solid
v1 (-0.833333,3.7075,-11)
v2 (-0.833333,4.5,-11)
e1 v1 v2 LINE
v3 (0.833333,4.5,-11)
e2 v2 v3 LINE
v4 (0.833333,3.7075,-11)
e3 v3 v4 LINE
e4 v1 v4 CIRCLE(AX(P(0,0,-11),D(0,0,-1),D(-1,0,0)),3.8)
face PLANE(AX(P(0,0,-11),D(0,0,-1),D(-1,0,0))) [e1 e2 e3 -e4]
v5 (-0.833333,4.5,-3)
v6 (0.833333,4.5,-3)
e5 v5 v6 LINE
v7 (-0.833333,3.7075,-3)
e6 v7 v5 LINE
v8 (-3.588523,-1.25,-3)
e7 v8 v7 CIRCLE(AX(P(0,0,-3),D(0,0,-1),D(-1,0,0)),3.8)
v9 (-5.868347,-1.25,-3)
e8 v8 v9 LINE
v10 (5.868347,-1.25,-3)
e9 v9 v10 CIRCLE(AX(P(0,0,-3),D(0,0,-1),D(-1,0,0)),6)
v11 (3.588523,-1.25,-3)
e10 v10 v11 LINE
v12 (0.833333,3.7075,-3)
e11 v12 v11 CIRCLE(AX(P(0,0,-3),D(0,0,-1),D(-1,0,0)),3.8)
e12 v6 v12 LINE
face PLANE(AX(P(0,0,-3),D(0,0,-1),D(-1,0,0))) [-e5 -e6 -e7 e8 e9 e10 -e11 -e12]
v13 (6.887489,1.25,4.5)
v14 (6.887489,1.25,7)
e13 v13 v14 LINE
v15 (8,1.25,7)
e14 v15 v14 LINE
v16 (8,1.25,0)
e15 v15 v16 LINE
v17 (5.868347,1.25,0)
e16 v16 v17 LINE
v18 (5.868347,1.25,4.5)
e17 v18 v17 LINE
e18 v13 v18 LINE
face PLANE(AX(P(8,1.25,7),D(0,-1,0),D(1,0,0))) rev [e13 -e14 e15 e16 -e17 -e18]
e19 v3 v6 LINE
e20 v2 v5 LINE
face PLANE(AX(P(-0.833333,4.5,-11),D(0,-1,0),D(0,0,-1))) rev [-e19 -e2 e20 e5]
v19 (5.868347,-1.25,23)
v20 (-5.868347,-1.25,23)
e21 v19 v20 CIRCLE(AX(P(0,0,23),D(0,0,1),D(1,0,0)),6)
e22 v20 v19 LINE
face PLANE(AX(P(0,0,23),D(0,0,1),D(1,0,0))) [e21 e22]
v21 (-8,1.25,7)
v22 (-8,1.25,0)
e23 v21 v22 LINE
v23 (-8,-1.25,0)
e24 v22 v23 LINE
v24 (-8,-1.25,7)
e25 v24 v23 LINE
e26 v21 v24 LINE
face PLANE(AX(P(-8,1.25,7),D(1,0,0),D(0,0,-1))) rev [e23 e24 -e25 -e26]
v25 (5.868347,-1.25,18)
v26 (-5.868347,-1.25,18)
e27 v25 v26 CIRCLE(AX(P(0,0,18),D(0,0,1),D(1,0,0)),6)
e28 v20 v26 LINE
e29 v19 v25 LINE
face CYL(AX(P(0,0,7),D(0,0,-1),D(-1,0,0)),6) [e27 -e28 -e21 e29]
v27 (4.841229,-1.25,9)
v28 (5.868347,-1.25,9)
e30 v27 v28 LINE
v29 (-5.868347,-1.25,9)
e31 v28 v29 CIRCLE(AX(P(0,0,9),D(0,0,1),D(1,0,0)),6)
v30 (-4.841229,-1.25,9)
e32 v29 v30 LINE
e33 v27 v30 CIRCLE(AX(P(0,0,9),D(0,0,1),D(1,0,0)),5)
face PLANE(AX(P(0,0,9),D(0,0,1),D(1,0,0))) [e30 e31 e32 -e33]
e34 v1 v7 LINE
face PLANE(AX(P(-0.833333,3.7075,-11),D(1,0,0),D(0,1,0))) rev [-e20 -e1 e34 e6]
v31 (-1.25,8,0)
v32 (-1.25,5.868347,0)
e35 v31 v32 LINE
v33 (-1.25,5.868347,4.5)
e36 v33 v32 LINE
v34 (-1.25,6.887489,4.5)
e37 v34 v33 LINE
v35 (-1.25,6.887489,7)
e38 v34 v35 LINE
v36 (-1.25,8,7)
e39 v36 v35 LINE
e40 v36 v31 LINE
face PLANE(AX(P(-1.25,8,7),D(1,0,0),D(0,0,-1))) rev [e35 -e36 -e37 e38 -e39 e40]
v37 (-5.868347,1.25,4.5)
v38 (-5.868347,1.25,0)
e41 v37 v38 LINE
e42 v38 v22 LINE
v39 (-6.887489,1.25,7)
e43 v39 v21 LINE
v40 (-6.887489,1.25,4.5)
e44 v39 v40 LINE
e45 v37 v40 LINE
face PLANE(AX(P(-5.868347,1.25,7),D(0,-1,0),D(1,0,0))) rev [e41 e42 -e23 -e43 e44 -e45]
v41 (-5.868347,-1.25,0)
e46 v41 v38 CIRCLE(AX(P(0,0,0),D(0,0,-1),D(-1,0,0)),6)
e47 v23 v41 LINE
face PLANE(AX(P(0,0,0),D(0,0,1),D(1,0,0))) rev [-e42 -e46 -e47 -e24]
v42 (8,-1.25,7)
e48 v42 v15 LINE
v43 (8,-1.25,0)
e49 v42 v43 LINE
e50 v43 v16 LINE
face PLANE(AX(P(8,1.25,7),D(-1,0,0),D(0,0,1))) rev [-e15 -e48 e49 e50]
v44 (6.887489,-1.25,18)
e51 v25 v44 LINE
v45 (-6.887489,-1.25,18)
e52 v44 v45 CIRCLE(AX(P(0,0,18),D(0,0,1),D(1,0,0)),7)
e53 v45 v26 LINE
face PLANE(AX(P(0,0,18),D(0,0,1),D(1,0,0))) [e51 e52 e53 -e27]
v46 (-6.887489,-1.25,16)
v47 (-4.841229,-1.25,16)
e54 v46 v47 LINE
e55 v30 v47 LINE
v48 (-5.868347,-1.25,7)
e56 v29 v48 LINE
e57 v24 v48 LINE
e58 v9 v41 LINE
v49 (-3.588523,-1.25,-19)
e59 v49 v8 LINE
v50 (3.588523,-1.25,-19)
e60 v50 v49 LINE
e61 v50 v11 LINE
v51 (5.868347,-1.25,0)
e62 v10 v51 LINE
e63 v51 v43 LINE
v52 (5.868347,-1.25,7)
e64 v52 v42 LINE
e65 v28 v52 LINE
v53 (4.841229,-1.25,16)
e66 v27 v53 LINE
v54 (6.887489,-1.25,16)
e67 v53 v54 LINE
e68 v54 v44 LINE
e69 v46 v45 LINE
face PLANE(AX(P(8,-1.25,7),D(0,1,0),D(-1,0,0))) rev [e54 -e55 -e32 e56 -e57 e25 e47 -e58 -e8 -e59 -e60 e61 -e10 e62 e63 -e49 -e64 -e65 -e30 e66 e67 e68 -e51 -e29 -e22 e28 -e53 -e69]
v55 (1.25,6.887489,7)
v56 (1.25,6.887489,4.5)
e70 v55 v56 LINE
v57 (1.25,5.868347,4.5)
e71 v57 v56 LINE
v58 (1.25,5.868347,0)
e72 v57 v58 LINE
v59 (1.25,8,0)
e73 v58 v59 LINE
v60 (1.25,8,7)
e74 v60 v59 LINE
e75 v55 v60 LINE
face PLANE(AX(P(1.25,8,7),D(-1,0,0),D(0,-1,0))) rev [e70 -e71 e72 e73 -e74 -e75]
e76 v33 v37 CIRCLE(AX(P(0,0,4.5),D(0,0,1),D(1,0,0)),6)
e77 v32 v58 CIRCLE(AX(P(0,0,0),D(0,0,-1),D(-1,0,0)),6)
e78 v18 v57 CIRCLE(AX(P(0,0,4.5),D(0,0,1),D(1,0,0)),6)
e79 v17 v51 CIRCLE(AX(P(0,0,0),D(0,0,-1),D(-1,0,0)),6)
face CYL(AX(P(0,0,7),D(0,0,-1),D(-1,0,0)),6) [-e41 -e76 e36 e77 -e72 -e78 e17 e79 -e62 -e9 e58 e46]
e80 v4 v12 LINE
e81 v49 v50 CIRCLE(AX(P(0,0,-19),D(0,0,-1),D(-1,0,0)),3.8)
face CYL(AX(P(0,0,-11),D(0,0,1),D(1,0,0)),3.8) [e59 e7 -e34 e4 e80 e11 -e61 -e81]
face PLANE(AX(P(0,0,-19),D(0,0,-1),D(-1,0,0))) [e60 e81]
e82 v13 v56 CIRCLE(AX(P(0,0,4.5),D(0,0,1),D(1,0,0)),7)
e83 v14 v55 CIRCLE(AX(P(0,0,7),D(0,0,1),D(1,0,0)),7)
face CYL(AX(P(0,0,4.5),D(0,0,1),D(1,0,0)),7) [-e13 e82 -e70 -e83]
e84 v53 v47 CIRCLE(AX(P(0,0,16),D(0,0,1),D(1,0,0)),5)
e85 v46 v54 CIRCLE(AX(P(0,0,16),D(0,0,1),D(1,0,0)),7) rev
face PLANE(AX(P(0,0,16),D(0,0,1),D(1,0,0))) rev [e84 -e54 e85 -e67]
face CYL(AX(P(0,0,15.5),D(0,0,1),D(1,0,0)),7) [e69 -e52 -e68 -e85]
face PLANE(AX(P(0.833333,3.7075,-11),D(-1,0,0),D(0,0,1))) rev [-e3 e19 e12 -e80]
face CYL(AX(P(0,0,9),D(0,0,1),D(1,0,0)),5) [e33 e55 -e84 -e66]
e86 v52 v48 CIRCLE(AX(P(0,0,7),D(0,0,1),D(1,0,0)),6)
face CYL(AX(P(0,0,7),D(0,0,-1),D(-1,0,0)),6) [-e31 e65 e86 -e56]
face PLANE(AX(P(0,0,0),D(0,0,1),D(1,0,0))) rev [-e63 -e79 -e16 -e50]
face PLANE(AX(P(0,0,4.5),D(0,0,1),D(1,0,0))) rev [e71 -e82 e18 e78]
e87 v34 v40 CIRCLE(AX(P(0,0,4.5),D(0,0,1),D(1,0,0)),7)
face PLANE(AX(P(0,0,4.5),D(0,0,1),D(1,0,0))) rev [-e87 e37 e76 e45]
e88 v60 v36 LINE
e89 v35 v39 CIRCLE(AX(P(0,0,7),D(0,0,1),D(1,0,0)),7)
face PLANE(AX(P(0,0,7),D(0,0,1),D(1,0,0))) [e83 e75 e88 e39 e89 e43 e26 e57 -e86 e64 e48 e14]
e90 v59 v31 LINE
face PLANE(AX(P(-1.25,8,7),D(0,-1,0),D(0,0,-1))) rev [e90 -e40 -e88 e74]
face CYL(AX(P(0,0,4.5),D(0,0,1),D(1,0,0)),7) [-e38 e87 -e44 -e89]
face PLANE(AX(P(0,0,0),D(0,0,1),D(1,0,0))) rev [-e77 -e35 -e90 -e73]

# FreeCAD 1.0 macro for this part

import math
import FreeCAD as App
import Part
import Sketcher
from FreeCAD import Vector
Q = App.Units.Quantity

doc = App.newDocument("Part")
body = doc.addObject("PartDesign::Body", "Body")

sketch1 = body.newObject("Sketcher::SketchObject", "Sketch")
sketch1.AttachmentSupport = (doc.getObject("XY_Plane"), [""])
sketch1.MapMode = "FlatFace"
sketch1.addGeometry(Part.LineSegment(Vector(8, 1.25, 0), Vector(5.868347, 1.25, 0)), False)
sketch1.addGeometry(Part.ArcOfCircle(Part.Circle(Vector(0, 0, 0), Vector(0, 0, 1), 6), math.radians(12.024699), math.radians(77.975301)), False)
sketch1.addGeometry(Part.LineSegment(Vector(1.25, 5.868347, 0), Vector(1.25, 8, 0)), False)
sketch1.addGeometry(Part.LineSegment(Vector(1.25, 8, 0), Vector(-1.25, 8, 0)), False)
sketch1.addGeometry(Part.LineSegment(Vector(-1.25, 8, 0), Vector(-1.25, 5.868347, 0)), False)
sketch1.addGeometry(Part.ArcOfCircle(Part.Circle(Vector(0, 0, 0), Vector(0, 0, 1), 6), math.radians(102.024699), math.radians(167.975301)), False)
sketch1.addGeometry(Part.LineSegment(Vector(-5.868347, 1.25, 0), Vector(-8, 1.25, 0)), False)
sketch1.addGeometry(Part.LineSegment(Vector(-8, 1.25, 0), Vector(-8, -1.25, 0)), False)
sketch1.addGeometry(Part.LineSegment(Vector(-8, -1.25, 0), Vector(8, -1.25, 0)), False)
sketch1.addGeometry(Part.LineSegment(Vector(8, -1.25, 0), Vector(8, 1.25, 0)), False)
sketch1.addConstraint(Sketcher.Constraint("Coincident", 0, 2, 1, 1))
sketch1.addConstraint(Sketcher.Constraint("Coincident", 1, 2, 2, 1))
sketch1.addConstraint(Sketcher.Constraint("Coincident", 2, 2, 3, 1))
sketch1.addConstraint(Sketcher.Constraint("Coincident", 3, 2, 4, 1))
sketch1.addConstraint(Sketcher.Constraint("Coincident", 4, 2, 5, 1))
sketch1.addConstraint(Sketcher.Constraint("Coincident", 5, 2, 6, 1))
sketch1.addConstraint(Sketcher.Constraint("Coincident", 6, 2, 7, 1))
sketch1.addConstraint(Sketcher.Constraint("Coincident", 7, 2, 8, 1))
sketch1.addConstraint(Sketcher.Constraint("Coincident", 8, 2, 9, 1))
sketch1.addConstraint(Sketcher.Constraint("Coincident", 9, 2, 0, 1))
sketch1.addConstraint(Sketcher.Constraint("Horizontal", 0))
sketch1.addConstraint(Sketcher.Constraint("Vertical", 2))
sketch1.addConstraint(Sketcher.Constraint("Horizontal", 3))
sketch1.addConstraint(Sketcher.Constraint("Vertical", 4))
sketch1.addConstraint(Sketcher.Constraint("Horizontal", 6))
sketch1.addConstraint(Sketcher.Constraint("Vertical", 7))
sketch1.addConstraint(Sketcher.Constraint("Horizontal", 8))
sketch1.addConstraint(Sketcher.Constraint("Vertical", 9))
sketch1.addConstraint(Sketcher.Constraint("Coincident", 1, 3, -1, 1))
sketch1.addConstraint(Sketcher.Constraint("Coincident", 5, 3, -1, 1))
sketch1.addConstraint(Sketcher.Constraint("Equal", 1, 5))
sketch1.addConstraint(Sketcher.Constraint("Symmetric", 6, 2, 8, 2, -1, 1))
sketch1.addConstraint(Sketcher.Constraint("Horizontal", 1, 2, 4, 2))
sketch1.addConstraint(Sketcher.Constraint("Horizontal", 0, 2, 5, 2))
sketch1.addConstraint(Sketcher.Constraint("Equal", 6, 2))
sketch1.addConstraint(Sketcher.Constraint("Equal", 3, 7))
sketch1.addConstraint(Sketcher.Constraint("Radius", 1, Q("6 mm")))
sketch1.addConstraint(Sketcher.Constraint("DistanceX", 8, 1, 8, 2, Q("16 mm")))
sketch1.addConstraint(Sketcher.Constraint("DistanceX", 3, 2, 3, 1, Q("2.5 mm")))
pad1 = body.newObject("PartDesign::Pad", "Pad")
pad1.Profile = sketch1
pad1.Length = 7

sketch2 = body.newObject("Sketcher::SketchObject", "Sketch001")
sketch2.AttachmentSupport = (doc.getObject("XY_Plane"), [""])
sketch2.MapMode = "FlatFace"
sketch2.AttachmentOffset = App.Placement(Vector(0, 0, 7), App.Rotation())
sketch2.addGeometry(Part.LineSegment(Vector(-5.868347, -1.25, 0), Vector(5.868347, -1.25, 0)), False)
sketch2.addGeometry(Part.ArcOfCircle(Part.Circle(Vector(0, 0, 0), Vector(0, 0, 1), 6), math.radians(-12.024699), math.radians(192.024699)), False)
sketch2.addConstraint(Sketcher.Constraint("Coincident", 0, 1, 1, 2))
sketch2.addConstraint(Sketcher.Constraint("Coincident", 1, 1, 0, 2))
sketch2.addConstraint(Sketcher.Constraint("Horizontal", 0))
sketch2.addConstraint(Sketcher.Constraint("Coincident", 1, 3, -1, 1))
sketch2.addConstraint(Sketcher.Constraint("Radius", 1, Q("6 mm")))
sketch2.addConstraint(Sketcher.Constraint("DistanceY", 0, 1, -1, 1, Q("1.25 mm")))
pad2 = body.newObject("PartDesign::Pad", "Pad001")
pad2.Profile = sketch2
pad2.Length = 16

sketch3 = body.newObject("Sketcher::SketchObject", "Sketch002")
sketch3.AttachmentSupport = (doc.getObject("XY_Plane"), [""])
sketch3.MapMode = "FlatFace"
sketch3.AttachmentOffset = App.Placement(Vector(0, 0, 7), App.Rotation())
sketch3.addGeometry(Part.LineSegment(Vector(-6.887489, -1.25, 0), Vector(6.887489, -1.25, 0)), False)
sketch3.addGeometry(Part.ArcOfCircle(Part.Circle(Vector(0, 0, 0), Vector(0, 0, 1), 7), math.radians(-10.286561), math.radians(190.286561)), False)
sketch3.addConstraint(Sketcher.Constraint("Coincident", 0, 1, 1, 2))
sketch3.addConstraint(Sketcher.Constraint("Coincident", 1, 1, 0, 2))
sketch3.addConstraint(Sketcher.Constraint("Horizontal", 0))
sketch3.addConstraint(Sketcher.Constraint("Coincident", 1, 3, -1, 1))
sketch3.addConstraint(Sketcher.Constraint("Radius", 1, Q("7 mm")))
sketch3.addConstraint(Sketcher.Constraint("DistanceY", 0, 1, -1, 1, Q("1.25 mm")))
pad3 = body.newObject("PartDesign::Pad", "Pad002")
pad3.Profile = sketch3
pad3.Length = 2.5
pad3.Reversed = True

sketch4 = body.newObject("Sketcher::SketchObject", "Sketch003")
sketch4.AttachmentSupport = (doc.getObject("XY_Plane"), [""])
sketch4.MapMode = "FlatFace"
sketch4.AttachmentOffset = App.Placement(Vector(0, 0, 18), App.Rotation())
sketch4.addGeometry(Part.LineSegment(Vector(-6.887489, -1.25, 0), Vector(6.887489, -1.25, 0)), False)
sketch4.addGeometry(Part.ArcOfCircle(Part.Circle(Vector(0, 0, 0), Vector(0, 0, 1), 7), math.radians(-10.286561), math.radians(190.286561)), False)
sketch4.addConstraint(Sketcher.Constraint("Coincident", 0, 1, 1, 2))
sketch4.addConstraint(Sketcher.Constraint("Coincident", 1, 1, 0, 2))
sketch4.addConstraint(Sketcher.Constraint("Horizontal", 0))
sketch4.addConstraint(Sketcher.Constraint("Coincident", 1, 3, -1, 1))
sketch4.addConstraint(Sketcher.Constraint("Radius", 1, Q("7 mm")))
sketch4.addConstraint(Sketcher.Constraint("DistanceY", 0, 1, -1, 1, Q("1.25 mm")))
pad4 = body.newObject("PartDesign::Pad", "Pad003")
pad4.Profile = sketch4
pad4.Length = 2.5
pad4.Reversed = True

sketch5 = body.newObject("Sketcher::SketchObject", "Sketch004")
sketch5.AttachmentSupport = (doc.getObject("XY_Plane"), [""])
sketch5.MapMode = "FlatFace"
sketch5.AttachmentOffset = App.Placement(Vector(0, 0, 16), App.Rotation())
sketch5.addGeometry(Part.Circle(Vector(0, 0, 0), Vector(0, 0, 1), 7.581766), False)
sketch5.addGeometry(Part.LineSegment(Vector(4.841229, -1.25, 0), Vector(-4.841229, -1.25, 0)), False)
sketch5.addGeometry(Part.ArcOfCircle(Part.Circle(Vector(0, 0, 0), Vector(0, 0, 1), 5), math.radians(-14.477512), math.radians(194.477512)), False)
sketch5.addConstraint(Sketcher.Constraint("Coincident", 1, 1, 2, 1))
sketch5.addConstraint(Sketcher.Constraint("Coincident", 2, 2, 1, 2))
sketch5.addConstraint(Sketcher.Constraint("Horizontal", 1))
sketch5.addConstraint(Sketcher.Constraint("Coincident", 0, 3, -1, 1))
sketch5.addConstraint(Sketcher.Constraint("Coincident", 2, 3, -1, 1))
sketch5.addConstraint(Sketcher.Constraint("Radius", 2, Q("5 mm")))
sketch5.addConstraint(Sketcher.Constraint("Diameter", 0, Q("15.163532 mm")))
sketch5.addConstraint(Sketcher.Constraint("DistanceY", 1, 1, -1, 1, Q("1.25 mm")))
pocket1 = body.newObject("PartDesign::Pocket", "Pocket")
pocket1.Profile = sketch5
pocket1.Length = 7

sketch6 = body.newObject("Sketcher::SketchObject", "Sketch005")
sketch6.AttachmentSupport = (doc.getObject("XY_Plane"), [""])
sketch6.MapMode = "FlatFace"
sketch6.AttachmentOffset = App.Placement(Vector(0, 0, -3), App.Rotation())
sketch6.addGeometry(Part.LineSegment(Vector(5.868347, -1.25, 0), Vector(-5.868347, -1.25, 0)), False)
sketch6.addGeometry(Part.ArcOfCircle(Part.Circle(Vector(0, 0, 0), Vector(0, 0, 1), 6), math.radians(-12.024699), math.radians(192.024699)), False)
sketch6.addConstraint(Sketcher.Constraint("Coincident", 0, 1, 1, 1))
sketch6.addConstraint(Sketcher.Constraint("Coincident", 1, 2, 0, 2))
sketch6.addConstraint(Sketcher.Constraint("Horizontal", 0))
sketch6.addConstraint(Sketcher.Constraint("Coincident", 1, 3, -1, 1))
sketch6.addConstraint(Sketcher.Constraint("Radius", 1, Q("6 mm")))
sketch6.addConstraint(Sketcher.Constraint("DistanceY", 0, 1, -1, 1, Q("1.25 mm")))
pad5 = body.newObject("PartDesign::Pad", "Pad004")
pad5.Profile = sketch6
pad5.Length = 3

sketch7 = body.newObject("Sketcher::SketchObject", "Sketch006")
sketch7.AttachmentSupport = (doc.getObject("XY_Plane"), [""])
sketch7.MapMode = "FlatFace"
sketch7.AttachmentOffset = App.Placement(Vector(0, 0, -3), App.Rotation())
sketch7.addGeometry(Part.LineSegment(Vector(3.588523, -1.25, 0), Vector(-3.588523, -1.25, 0)), False)
sketch7.addGeometry(Part.ArcOfCircle(Part.Circle(Vector(0, 0, 0), Vector(0, 0, 1), 3.8), math.radians(102.667819), math.radians(199.204898)), False)
sketch7.addGeometry(Part.LineSegment(Vector(-0.833333, 3.7075, 0), Vector(-0.833333, 4.5, 0)), False)
sketch7.addGeometry(Part.LineSegment(Vector(-0.833333, 4.5, 0), Vector(0.833333, 4.5, 0)), False)
sketch7.addGeometry(Part.LineSegment(Vector(0.833333, 4.5, 0), Vector(0.833333, 3.7075, 0)), False)
sketch7.addGeometry(Part.ArcOfCircle(Part.Circle(Vector(0, 0, 0), Vector(0, 0, 1), 3.8), math.radians(-19.204898), math.radians(77.332181)), False)
sketch7.addConstraint(Sketcher.Constraint("Coincident", 0, 2, 1, 2))
sketch7.addConstraint(Sketcher.Constraint("Coincident", 1, 1, 2, 1))
sketch7.addConstraint(Sketcher.Constraint("Coincident", 2, 2, 3, 1))
sketch7.addConstraint(Sketcher.Constraint("Coincident", 3, 2, 4, 1))
sketch7.addConstraint(Sketcher.Constraint("Coincident", 4, 2, 5, 2))
sketch7.addConstraint(Sketcher.Constraint("Coincident", 5, 1, 0, 1))
sketch7.addConstraint(Sketcher.Constraint("Horizontal", 0))
sketch7.addConstraint(Sketcher.Constraint("Vertical", 2))
sketch7.addConstraint(Sketcher.Constraint("Horizontal", 3))
sketch7.addConstraint(Sketcher.Constraint("Vertical", 4))
sketch7.addConstraint(Sketcher.Constraint("Coincident", 1, 3, -1, 1))
sketch7.addConstraint(Sketcher.Constraint("Coincident", 5, 3, -1, 1))
sketch7.addConstraint(Sketcher.Constraint("Equal", 1, 5))
sketch7.addConstraint(Sketcher.Constraint("Horizontal", 1, 1, 4, 2))
sketch7.addConstraint(Sketcher.Constraint("Radius", 1, Q("3.8 mm")))
sketch7.addConstraint(Sketcher.Constraint("DistanceY", -1, 1, 2, 2, Q("4.5 mm")))
sketch7.addConstraint(Sketcher.Constraint("DistanceY", 0, 2, -1, 1, Q("1.25 mm")))
sketch7.addConstraint(Sketcher.Constraint("DistanceY", 2, 1, 2, 2, Q("0.7925 mm")))
pad6 = body.newObject("PartDesign::Pad", "Pad005")
pad6.Profile = sketch7
pad6.Length = 8
pad6.Reversed = True

sketch8 = body.newObject("Sketcher::SketchObject", "Sketch007")
sketch8.AttachmentSupport = (doc.getObject("XY_Plane"), [""])
sketch8.MapMode = "FlatFace"
sketch8.AttachmentOffset = App.Placement(Vector(0, 0, -11), App.Rotation())
sketch8.addGeometry(Part.LineSegment(Vector(3.588523, -1.25, 0), Vector(-3.588523, -1.25, 0)), False)
sketch8.addGeometry(Part.ArcOfCircle(Part.Circle(Vector(0, 0, 0), Vector(0, 0, 1), 3.8), math.radians(-19.204897), math.radians(199.204897)), False)
sketch8.addConstraint(Sketcher.Constraint("Coincident", 0, 1, 1, 1))
sketch8.addConstraint(Sketcher.Constraint("Coincident", 1, 2, 0, 2))
sketch8.addConstraint(Sketcher.Constraint("Horizontal", 0))
sketch8.addConstraint(Sketcher.Constraint("Coincident", 1, 3, -1, 1))
sketch8.addConstraint(Sketcher.Constraint("Radius", 1, Q("3.8 mm")))
sketch8.addConstraint(Sketcher.Constraint("DistanceY", 0, 1, -1, 1, Q("1.25 mm")))
pad7 = body.newObject("PartDesign::Pad", "Pad006")
pad7.Profile = sketch8
pad7.Length = 8
pad7.Reversed = True

doc.recompute()
